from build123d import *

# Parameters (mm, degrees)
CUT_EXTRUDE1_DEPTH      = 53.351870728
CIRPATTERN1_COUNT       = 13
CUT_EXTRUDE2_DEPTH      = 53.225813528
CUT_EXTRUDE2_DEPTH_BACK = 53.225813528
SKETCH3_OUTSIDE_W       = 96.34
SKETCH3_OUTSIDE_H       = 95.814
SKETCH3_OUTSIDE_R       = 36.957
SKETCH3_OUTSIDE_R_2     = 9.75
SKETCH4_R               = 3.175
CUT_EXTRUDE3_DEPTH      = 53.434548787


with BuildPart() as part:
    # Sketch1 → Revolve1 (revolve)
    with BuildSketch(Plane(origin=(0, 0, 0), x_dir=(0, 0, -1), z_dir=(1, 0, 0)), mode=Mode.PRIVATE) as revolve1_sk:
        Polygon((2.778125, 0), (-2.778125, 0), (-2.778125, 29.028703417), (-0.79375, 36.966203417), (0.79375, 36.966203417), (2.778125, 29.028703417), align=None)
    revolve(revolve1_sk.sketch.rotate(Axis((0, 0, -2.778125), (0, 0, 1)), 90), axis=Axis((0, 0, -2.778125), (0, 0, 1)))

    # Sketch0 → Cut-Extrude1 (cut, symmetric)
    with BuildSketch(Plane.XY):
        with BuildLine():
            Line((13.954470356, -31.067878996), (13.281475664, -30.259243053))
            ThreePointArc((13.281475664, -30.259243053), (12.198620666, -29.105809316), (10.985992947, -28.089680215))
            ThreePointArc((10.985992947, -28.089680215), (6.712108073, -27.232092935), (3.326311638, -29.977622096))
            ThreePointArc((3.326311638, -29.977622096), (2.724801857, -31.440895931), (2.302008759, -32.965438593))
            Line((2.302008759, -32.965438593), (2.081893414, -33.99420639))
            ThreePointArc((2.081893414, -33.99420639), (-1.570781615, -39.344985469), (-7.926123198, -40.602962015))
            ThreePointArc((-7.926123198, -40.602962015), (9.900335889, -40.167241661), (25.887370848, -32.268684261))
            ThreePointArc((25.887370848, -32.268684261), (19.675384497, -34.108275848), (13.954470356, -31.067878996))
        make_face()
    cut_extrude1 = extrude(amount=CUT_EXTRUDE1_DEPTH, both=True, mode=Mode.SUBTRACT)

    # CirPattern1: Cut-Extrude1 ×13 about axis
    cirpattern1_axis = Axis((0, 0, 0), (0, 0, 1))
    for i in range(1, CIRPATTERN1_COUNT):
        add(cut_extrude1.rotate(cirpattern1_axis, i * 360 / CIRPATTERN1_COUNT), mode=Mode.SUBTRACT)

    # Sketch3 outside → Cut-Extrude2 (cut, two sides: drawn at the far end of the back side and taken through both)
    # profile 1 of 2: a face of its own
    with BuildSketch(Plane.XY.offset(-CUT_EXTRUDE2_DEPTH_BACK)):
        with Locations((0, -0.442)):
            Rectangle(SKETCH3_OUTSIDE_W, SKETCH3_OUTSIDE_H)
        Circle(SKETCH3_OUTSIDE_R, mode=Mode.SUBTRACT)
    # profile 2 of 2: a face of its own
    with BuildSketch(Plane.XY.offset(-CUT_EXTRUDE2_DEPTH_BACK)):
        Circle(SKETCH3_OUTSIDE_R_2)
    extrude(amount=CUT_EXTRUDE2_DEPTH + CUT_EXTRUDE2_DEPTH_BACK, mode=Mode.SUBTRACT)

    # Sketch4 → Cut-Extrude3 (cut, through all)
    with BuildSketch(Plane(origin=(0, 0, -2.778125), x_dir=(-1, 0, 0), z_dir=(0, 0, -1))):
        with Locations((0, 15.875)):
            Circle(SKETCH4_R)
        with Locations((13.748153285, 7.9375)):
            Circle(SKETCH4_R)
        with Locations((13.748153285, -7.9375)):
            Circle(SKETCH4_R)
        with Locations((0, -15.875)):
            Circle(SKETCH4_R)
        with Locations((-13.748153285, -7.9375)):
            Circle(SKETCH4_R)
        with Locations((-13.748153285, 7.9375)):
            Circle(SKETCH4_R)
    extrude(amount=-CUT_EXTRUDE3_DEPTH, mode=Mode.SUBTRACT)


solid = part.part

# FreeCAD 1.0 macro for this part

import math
import FreeCAD as App
import Part
import Sketcher

V = App.Vector
Q = App.Units.Quantity


def add_polygon(sketch, points):
    """Adds a closed chain of lines whose ends are joined by coincident constraints."""
    first, n = sketch.GeometryCount, len(points)
    for a, b in zip(points, points[1:] + points[:1]):
        sketch.addGeometry(Part.LineSegment(App.Vector(*a, 0), App.Vector(*b, 0)), False)
    for i in range(n):
        sketch.addConstraint(Sketcher.Constraint("Coincident", first + i, 2, first + (i + 1) % n, 1))

doc = App.newDocument("Part")
body = doc.addObject("PartDesign::Body", "Body")

# Sketch on YZ plane
sketch1 = body.newObject("Sketcher::SketchObject", "Sketch")
sketch1.AttachmentSupport = (doc.getObject("YZ_Plane"), [""])
sketch1.MapMode = "FlatFace"
add_polygon(sketch1, [(0, 2.8), (0, -2.8), (29, -2.8), (37, -0.8), (37, 0.8), (29, 2.8)])  # lines 0-5
sketch1.addConstraint(Sketcher.Constraint("Vertical", 0))
sketch1.addConstraint(Sketcher.Constraint("Horizontal", 1))
sketch1.addConstraint(Sketcher.Constraint("Vertical", 3))
sketch1.addConstraint(Sketcher.Constraint("Horizontal", 5))
sketch1.addConstraint(Sketcher.Constraint("Symmetric", 0, 2, 5, 2, -1, 1))
sketch1.addConstraint(Sketcher.Constraint("Vertical", 1, 2, 4, 2))
sketch1.addConstraint(Sketcher.Constraint("Equal", 2, 4))
sketch1.addConstraint(Sketcher.Constraint("DistanceY", 0, 2, 0, 1, Q("0.21875 in")))
sketch1.addConstraint(Sketcher.Constraint("DistanceY", 3, 1, 3, 2, Q("0.0625 in")))
sketch1.addConstraint(Sketcher.Constraint("DistanceX", 1, 2, 2, 2, Q("0.3125 in")))
sketch1.addConstraint(Sketcher.Constraint("DistanceX", 1, 1, 1, 2, Q("29.028703 mm")))
revolution = body.newObject("PartDesign::Revolution", "Revolution")
revolution.Profile = sketch1
revolution.ReferenceAxis = (sketch1, ["V_Axis"])
revolution.Angle = 360

# Sketch on XY plane
sketch2 = body.newObject("Sketcher::SketchObject", "Sketch001")
sketch2.AttachmentSupport = (doc.getObject("XY_Plane"), [""])
sketch2.MapMode = "FlatFace"
sketch2.addGeometry(Part.LineSegment(V(14, -31.1, 0), V(13.3, -30.3, 0)), False)
sketch2.addGeometry(Part.ArcOfCircle(Part.Circle(V(3.1, -38.7, 0), V(0, 0, 1), 13.2), math.radians(39.77), math.radians(53.46)), False)
sketch2.addGeometry(Part.ArcOfCircle(Part.Circle(V(7.9, -32.2, 0), V(0, 0, 1), 5.1), math.radians(53), math.radians(154)), False)
sketch2.addGeometry(Part.ArcOfCircle(Part.Circle(V(15.3, -35.7, 0), V(0, 0, 1), 13.2), math.radians(154.23), math.radians(167.92)), False)
sketch2.addGeometry(Part.LineSegment(V(2.3, -33, 0), V(2.1, -34, 0)), False)
sketch2.addGeometry(Part.ArcOfCircle(Part.Circle(V(-6.3, -32.2, 0), V(0, 0, 1), 8.6), math.radians(-101), math.radians(-12)), False)
sketch2.addGeometry(Part.ArcOfCircle(Part.Circle(V(0, 0, 0), V(0, 0, 1), 41.4), math.radians(-101), math.radians(-51)), False)
sketch2.addGeometry(Part.ArcOfCircle(Part.Circle(V(20.5, -25.6, 0), V(0, 0, 1), 8.6), math.radians(-140), math.radians(-51)), False)
sketch2.addConstraint(Sketcher.Constraint("Tangent", 0, 2, 1, 1))
sketch2.addConstraint(Sketcher.Constraint("Tangent", 1, 2, 2, 1))
sketch2.addConstraint(Sketcher.Constraint("Tangent", 2, 2, 3, 1))
sketch2.addConstraint(Sketcher.Constraint("Tangent", 3, 2, 4, 1))
sketch2.addConstraint(Sketcher.Constraint("Tangent", 4, 2, 5, 2))
sketch2.addConstraint(Sketcher.Constraint("Tangent", 5, 1, 6, 1))
sketch2.addConstraint(Sketcher.Constraint("Tangent", 6, 2, 7, 2))
sketch2.addConstraint(Sketcher.Constraint("Tangent", 7, 1, 0, 1))
sketch2.addConstraint(Sketcher.Constraint("Coincident", 6, 3, -1, 1))
sketch2.addConstraint(Sketcher.Constraint("Equal", 1, 3))
sketch2.addConstraint(Sketcher.Constraint("Equal", 5, 7))
sketch2.addConstraint(Sketcher.Constraint("Horizontal", 2, 3, 5, 3))
sketch2.addConstraint(Sketcher.Constraint("Equal", 0, 4))
sketch2.addConstraint(Sketcher.Constraint("Radius", 1, Q("13.2484 mm")))
sketch2.addConstraint(Sketcher.Constraint("Radius", 2, Q("5.1204 mm")))
sketch2.addConstraint(Sketcher.Constraint("Radius", 5, Q("8.557798 mm")))
sketch2.addConstraint(Sketcher.Constraint("DistanceX", 5, 3, 2, 3, Q("0.56 in")))
sketch2.addConstraint(Sketcher.Constraint("DistanceX", -1, 1, 2, 3, Q("0.3125 in")))
sketch2.addConstraint(Sketcher.Constraint("Radius", 6, Q("41.36936 mm")))
sketch2.addConstraint(Sketcher.Constraint("DistanceY", 1, 3, 2, 3, Q("6.530502 mm")))
sketch2.addConstraint(Sketcher.Constraint("DistanceY", 1, 2, 7, 3, Q("2.496199 mm")))
pocket1 = body.newObject("PartDesign::Pocket", "Pocket")
pocket1.Profile = sketch2
pocket1.Length = 106.703741
pocket1.Midplane = True
doc.recompute()

polarpattern = body.newObject("PartDesign::PolarPattern", "PolarPattern")
polarpattern.Originals = [pocket1]
polarpattern.Axis = (doc.getObject("Z_Axis"), [""])
polarpattern.Angle = 360
polarpattern.Occurrences = 13
body.Tip = polarpattern

# Sketch on XY plane
sketch3 = body.newObject("Sketcher::SketchObject", "Sketch002")
sketch3.AttachmentSupport = (doc.getObject("XY_Plane"), [""])
sketch3.MapMode = "FlatFace"
add_polygon(sketch3, [(-48, 47), (-48, -48), (48, -48), (48, 47)])  # lines 0-3
sketch3.addGeometry(Part.Circle(V(0, 0, 0), V(0, 0, 1), 37), False)  # 4
sketch3.addGeometry(Part.Circle(V(0, 0, 0), V(0, 0, 1), 10), False)  # 5
sketch3.addConstraint(Sketcher.Constraint("Vertical", 0))
sketch3.addConstraint(Sketcher.Constraint("Horizontal", 1))
sketch3.addConstraint(Sketcher.Constraint("Vertical", 2))
sketch3.addConstraint(Sketcher.Constraint("Horizontal", 3))
sketch3.addConstraint(Sketcher.Constraint("Coincident", 4, 3, -1, 1))
sketch3.addConstraint(Sketcher.Constraint("Coincident", 5, 3, -1, 1))
sketch3.addConstraint(Sketcher.Constraint("Diameter", 4, Q("2.91 in")))
sketch3.addConstraint(Sketcher.Constraint("Diameter", 5, Q("19.5 mm")))
sketch3.addConstraint(Sketcher.Constraint("DistanceX", 1, 1, 1, 2, Q("96.34 mm")))
sketch3.addConstraint(Sketcher.Constraint("DistanceY", 0, 2, 0, 1, Q("95.814 mm")))
sketch3.addConstraint(Sketcher.Constraint("DistanceX", 0, 2, -1, 1, Q("48.17 mm")))
sketch3.addConstraint(Sketcher.Constraint("DistanceY", 0, 2, -1, 1, Q("48.349 mm")))
pocket2 = body.newObject("PartDesign::Pocket", "Pocket001")
pocket2.Profile = sketch3
pocket2.Type = "ThroughAll"
pocket2.Midplane = True

# Sketch on XY plane
sketch4 = body.newObject("Sketcher::SketchObject", "Sketch003")
sketch4.AttachmentSupport = (doc.getObject("XY_Plane"), [""])
sketch4.MapMode = "FlatFace"
sketch4.AttachmentOffset = App.Placement(V(0, 0, -0.109375 * 25.4), App.Rotation())
sketch4.addGeometry(Part.Circle(V(0, 15.9, 0), V(0, 0, 1), 3.2), False)
sketch4.addGeometry(Part.Circle(V(-13.7, 7.9, 0), V(0, 0, 1), 3.2), False)
sketch4.addGeometry(Part.Circle(V(-13.7, -7.9, 0), V(0, 0, 1), 3.2), False)
sketch4.addGeometry(Part.Circle(V(0, -15.9, 0), V(0, 0, 1), 3.2), False)
sketch4.addGeometry(Part.Circle(V(13.7, -7.9, 0), V(0, 0, 1), 3.2), False)
sketch4.addGeometry(Part.Circle(V(13.7, 7.9, 0), V(0, 0, 1), 3.2), False)
sketch4.addConstraint(Sketcher.Constraint("Equal", 0, 1))
sketch4.addConstraint(Sketcher.Constraint("Equal", 1, 2))
sketch4.addConstraint(Sketcher.Constraint("Equal", 2, 3))
sketch4.addConstraint(Sketcher.Constraint("Equal", 3, 4))
sketch4.addConstraint(Sketcher.Constraint("Equal", 4, 5))
sketch4.addConstraint(Sketcher.Constraint("Symmetric", 0, 3, 3, 3, -1, 1))
sketch4.addConstraint(Sketcher.Constraint("Symmetric", 1, 3, 4, 3, -1, 1))
sketch4.addConstraint(Sketcher.Constraint("Symmetric", 2, 3, 5, 3, -1, 1))
sketch4.addConstraint(Sketcher.Constraint("Symmetric", 2, 3, 4, 3, -2))
sketch4.addConstraint(Sketcher.Constraint("PointOnObject", 0, 3, -2))
sketch4.addConstraint(Sketcher.Constraint("Diameter", 0, Q("0.25 in")))
sketch4.addConstraint(Sketcher.Constraint("DistanceY", 3, 3, 0, 3, Q("1.25 in")))
sketch4.addConstraint(Sketcher.Constraint("DistanceY", -1, 1, 1, 3, Q("0.3125 in")))
sketch4.addConstraint(Sketcher.Constraint("DistanceX", 1, 3, -1, 1, Q("13.748153 mm")))
pocket3 = body.newObject("PartDesign::Pocket", "Pocket002")
pocket3.Profile = sketch4
pocket3.Type = "ThroughAll"
pocket3.Reversed = True

doc.recompute()
